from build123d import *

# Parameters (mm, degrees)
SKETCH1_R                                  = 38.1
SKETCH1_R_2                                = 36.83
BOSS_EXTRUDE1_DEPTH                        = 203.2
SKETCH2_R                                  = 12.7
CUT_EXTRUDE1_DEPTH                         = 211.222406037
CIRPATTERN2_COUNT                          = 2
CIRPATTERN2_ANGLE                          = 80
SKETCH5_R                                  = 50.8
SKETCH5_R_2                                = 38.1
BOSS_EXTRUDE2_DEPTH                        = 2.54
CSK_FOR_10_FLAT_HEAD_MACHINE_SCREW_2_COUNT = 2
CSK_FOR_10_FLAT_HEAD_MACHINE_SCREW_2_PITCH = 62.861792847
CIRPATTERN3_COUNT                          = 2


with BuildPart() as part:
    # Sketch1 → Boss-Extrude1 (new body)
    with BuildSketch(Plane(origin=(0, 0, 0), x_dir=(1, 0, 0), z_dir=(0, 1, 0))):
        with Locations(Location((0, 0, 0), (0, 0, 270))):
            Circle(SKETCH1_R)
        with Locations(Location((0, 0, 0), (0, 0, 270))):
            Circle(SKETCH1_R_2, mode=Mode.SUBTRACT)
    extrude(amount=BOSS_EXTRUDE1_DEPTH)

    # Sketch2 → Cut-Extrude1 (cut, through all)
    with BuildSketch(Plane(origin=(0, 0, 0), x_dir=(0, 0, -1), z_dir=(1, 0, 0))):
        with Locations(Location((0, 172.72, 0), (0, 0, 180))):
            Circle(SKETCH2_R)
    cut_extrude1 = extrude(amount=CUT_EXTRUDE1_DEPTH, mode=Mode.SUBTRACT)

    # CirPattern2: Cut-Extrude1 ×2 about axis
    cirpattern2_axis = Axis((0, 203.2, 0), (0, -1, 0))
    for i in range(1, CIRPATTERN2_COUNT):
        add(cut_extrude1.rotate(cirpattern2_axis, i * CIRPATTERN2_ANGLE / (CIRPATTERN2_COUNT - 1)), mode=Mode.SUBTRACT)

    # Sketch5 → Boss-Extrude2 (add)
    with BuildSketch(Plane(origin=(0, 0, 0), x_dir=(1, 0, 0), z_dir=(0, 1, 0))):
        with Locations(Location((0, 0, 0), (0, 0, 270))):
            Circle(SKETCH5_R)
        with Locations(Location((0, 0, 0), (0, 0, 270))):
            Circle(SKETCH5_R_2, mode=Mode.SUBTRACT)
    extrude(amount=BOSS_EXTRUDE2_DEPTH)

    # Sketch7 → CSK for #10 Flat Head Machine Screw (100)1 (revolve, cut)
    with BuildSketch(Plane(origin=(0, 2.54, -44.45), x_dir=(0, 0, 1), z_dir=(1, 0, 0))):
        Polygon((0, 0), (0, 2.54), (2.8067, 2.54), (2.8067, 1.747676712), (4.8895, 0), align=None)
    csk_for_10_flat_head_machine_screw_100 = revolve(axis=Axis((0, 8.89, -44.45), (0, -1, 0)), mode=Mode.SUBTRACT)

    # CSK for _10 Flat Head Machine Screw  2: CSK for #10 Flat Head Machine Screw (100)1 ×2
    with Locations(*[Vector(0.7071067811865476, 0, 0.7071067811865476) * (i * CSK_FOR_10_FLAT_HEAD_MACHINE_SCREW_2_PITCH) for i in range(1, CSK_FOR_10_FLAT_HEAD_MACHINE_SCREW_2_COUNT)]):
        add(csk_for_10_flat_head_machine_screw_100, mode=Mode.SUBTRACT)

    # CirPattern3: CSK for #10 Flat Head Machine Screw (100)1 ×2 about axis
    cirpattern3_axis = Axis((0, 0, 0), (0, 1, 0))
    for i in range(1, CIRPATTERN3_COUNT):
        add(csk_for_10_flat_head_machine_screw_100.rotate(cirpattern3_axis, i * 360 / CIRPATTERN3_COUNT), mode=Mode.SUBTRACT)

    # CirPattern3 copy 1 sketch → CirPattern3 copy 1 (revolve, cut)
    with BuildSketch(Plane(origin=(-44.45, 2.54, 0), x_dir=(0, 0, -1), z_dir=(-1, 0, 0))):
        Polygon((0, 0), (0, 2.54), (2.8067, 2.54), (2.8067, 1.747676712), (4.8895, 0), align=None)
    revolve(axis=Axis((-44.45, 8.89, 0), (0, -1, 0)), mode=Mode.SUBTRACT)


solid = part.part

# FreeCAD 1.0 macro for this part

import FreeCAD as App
import Part
import Sketcher

V = App.Vector
Q = App.Units.Quantity

doc = App.newDocument("Part")
body = doc.addObject("PartDesign::Body", "Body")

# Sketch on XZ plane
sketch1 = body.newObject("Sketcher::SketchObject", "Sketch")
sketch1.AttachmentSupport = (doc.getObject("XZ_Plane"), [""])
sketch1.MapMode = "FlatFace"
sketch1.addGeometry([
    Part.Circle(V(0, 0, 0), V(0, 0, 1), 38),
    Part.Circle(V(0, 0, 0), V(0, 0, 1), 37),
], False)
sketch1.addConstraint([
    Sketcher.Constraint("Coincident", 0, 3, -1, 1),
    Sketcher.Constraint("Coincident", 1, 3, -1, 1),
    Sketcher.Constraint("Diameter", 0, Q("3 in")),
    Sketcher.Constraint("Diameter", 1, Q("2.9 in")),
])
pad1 = body.newObject("PartDesign::Pad", "Pad")
pad1.Profile = sketch1
pad1.Length = Q("8 in")
pad1.Reversed = True

# Sketch on YZ plane
sketch2 = body.newObject("Sketcher::SketchObject", "Sketch001")
sketch2.AttachmentSupport = (doc.getObject("YZ_Plane"), [""])
sketch2.MapMode = "FlatFace"
sketch2.addGeometry(Part.Circle(V(173, 0, 0), V(0, 0, 1), 13), False)
sketch2.addConstraint([
    Sketcher.Constraint("PointOnObject", 0, 3, -1),
    Sketcher.Constraint("Diameter", 0, Q("1 in")),
    Sketcher.Constraint("DistanceX", -1, 1, 0, 3, Q("6.8 in")),
])
pocket1 = body.newObject("PartDesign::Pocket", "Pocket")
pocket1.Profile = sketch2
pocket1.Type = "ThroughAll"
pocket1.Reversed = True
doc.recompute()

polarpattern = body.newObject("PartDesign::PolarPattern", "PolarPattern")
polarpattern.Originals = [pocket1]
polarpattern.Axis = (doc.getObject("Y_Axis"), [""])
polarpattern.Angle = 80
polarpattern.Occurrences = 2
polarpattern.Reversed = True
body.Tip = polarpattern

# Sketch on XZ plane
sketch3 = body.newObject("Sketcher::SketchObject", "Sketch002")
sketch3.AttachmentSupport = (doc.getObject("XZ_Plane"), [""])
sketch3.MapMode = "FlatFace"
sketch3.addGeometry([
    Part.Circle(V(0, 0, 0), V(0, 0, 1), 51),
    Part.Circle(V(0, 0, 0), V(0, 0, 1), 38),
], False)
sketch3.addConstraint([
    Sketcher.Constraint("Coincident", 0, 3, -1, 1),
    Sketcher.Constraint("Coincident", 1, 3, -1, 1),
    Sketcher.Constraint("Diameter", 0, Q("4 in")),
    Sketcher.Constraint("Diameter", 1, Q("3 in")),
])
pad2 = body.newObject("PartDesign::Pad", "Pad001")
pad2.Profile = sketch3
pad2.Length = Q("0.1 in")
pad2.Reversed = True

# Sketch on YZ plane
sketch4 = body.newObject("Sketcher::SketchObject", "Sketch003")
sketch4.AttachmentSupport = (doc.getObject("YZ_Plane"), [""])
sketch4.MapMode = "FlatFace"
sketch4.addGeometry([
    Part.LineSegment(V(0, -44.5, 0), V(2.5, -44.5, 0)),  # 0
    Part.LineSegment(V(2.5, -44.5, 0), V(2.5, -39.6, 0)),  # 1
    Part.LineSegment(V(2.5, -39.6, 0), V(0.8, -41.6, 0)),  # 2
    Part.LineSegment(V(0.8, -41.6, 0), V(0, -41.6, 0)),  # 3
    Part.LineSegment(V(0, -41.6, 0), V(0, -44.5, 0)),  # 4
], False)
sketch4.addGeometry(Part.LineSegment(V(2.5, -44.5, 0), V(0, -44.5, 0)), True)  # axis
sketch4.addConstraint([
    Sketcher.Constraint("Coincident", 0, 2, 1, 1),
    Sketcher.Constraint("Coincident", 1, 2, 2, 1),
    Sketcher.Constraint("Coincident", 2, 2, 3, 1),
    Sketcher.Constraint("Coincident", 3, 2, 4, 1),
    Sketcher.Constraint("Coincident", 4, 2, 0, 1),
    Sketcher.Constraint("Horizontal", 0),
    Sketcher.Constraint("Vertical", 1),
    Sketcher.Constraint("Horizontal", 3),
    Sketcher.Constraint("Vertical", 4),
    Sketcher.Constraint("Horizontal", 5),
    Sketcher.Constraint("Coincident", 5, 1, 0, 2),
    Sketcher.Constraint("PointOnObject", 3, 2, -2),
    Sketcher.Constraint("PointOnObject", 5, 2, -2),
    Sketcher.Constraint("DistanceX", 0, 1, 0, 2, Q("0.1 in")),
    Sketcher.Constraint("Angle", 2, Q("-130 deg")),
    Sketcher.Constraint("DistanceY", 0, 2, -1, 1, Q("1.75 in")),
    Sketcher.Constraint("DistanceY", 1, 1, 1, 2, Q("0.1925 in")),
    Sketcher.Constraint("DistanceY", 4, 2, 4, 1, Q("0.1105 in")),
])
groove = body.newObject("PartDesign::Groove", "Groove")
groove.Profile = sketch4
groove.ReferenceAxis = (sketch4, ["Axis0"])
groove.Angle = 360
doc.recompute()

datumline = body.newObject("PartDesign::Line", "DatumLine")
datumline.Placement = App.Placement(V(0, 0, 0), App.Rotation(V(0, 0, 1), V(0.707106781, 0, 0.707106781)))
linearpattern = body.newObject("PartDesign::LinearPattern", "LinearPattern")
linearpattern.Originals = [groove]
linearpattern.Direction = (datumline, [""])
linearpattern.Mode = "offset"
linearpattern.Offset = 62.861793
linearpattern.Occurrences = 2
body.Tip = linearpattern
doc.recompute()

polarpattern2 = body.newObject("PartDesign::PolarPattern", "PolarPattern001")
polarpattern2.Originals = [groove]
polarpattern2.Axis = (doc.getObject("Y_Axis"), [""])
polarpattern2.Angle = 360
polarpattern2.Occurrences = 2
body.Tip = polarpattern2

# Sketch on YZ plane
sketch5 = body.newObject("Sketcher::SketchObject", "Sketch004")
sketch5.AttachmentSupport = (doc.getObject("YZ_Plane"), [""])
sketch5.MapMode = "FlatFace"
sketch5.AttachmentOffset = App.Placement(V(0, 0, -1.75 * 25.4), App.Rotation())
sketch5.addGeometry([
    Part.LineSegment(V(0, 0, 0), V(2.5, 0, 0)),  # 0
    Part.LineSegment(V(2.5, 0, 0), V(2.5, -4.9, 0)),  # 1
    Part.LineSegment(V(2.5, -4.9, 0), V(0.8, -2.8, 0)),  # 2
    Part.LineSegment(V(0.8, -2.8, 0), V(0, -2.8, 0)),  # 3
    Part.LineSegment(V(0, -2.8, 0), V(0, 0, 0)),  # 4
], False)
sketch5.addConstraint([
    Sketcher.Constraint("Coincident", 0, 2, 1, 1),
    Sketcher.Constraint("Coincident", 1, 2, 2, 1),
    Sketcher.Constraint("Coincident", 2, 2, 3, 1),
    Sketcher.Constraint("Coincident", 3, 2, 4, 1),
    Sketcher.Constraint("Coincident", 4, 2, 0, 1),
    Sketcher.Constraint("Horizontal", 0),
    Sketcher.Constraint("Vertical", 1),
    Sketcher.Constraint("Horizontal", 3),
    Sketcher.Constraint("Vertical", 4),
    Sketcher.Constraint("Coincident", 4, 2, -1, 1),
    Sketcher.Constraint("DistanceX", 0, 1, 0, 2, Q("0.1 in")),
    Sketcher.Constraint("Angle", 2, Q("130 deg")),
    Sketcher.Constraint("DistanceY", 1, 2, 1, 1, Q("0.1925 in")),
    Sketcher.Constraint("DistanceY", 4, 1, 4, 2, Q("0.1105 in")),
])
groove2 = body.newObject("PartDesign::Groove", "Groove001")
groove2.Profile = sketch5
groove2.ReferenceAxis = (sketch5, ["H_Axis"])
groove2.Angle = 360

doc.recompute()
